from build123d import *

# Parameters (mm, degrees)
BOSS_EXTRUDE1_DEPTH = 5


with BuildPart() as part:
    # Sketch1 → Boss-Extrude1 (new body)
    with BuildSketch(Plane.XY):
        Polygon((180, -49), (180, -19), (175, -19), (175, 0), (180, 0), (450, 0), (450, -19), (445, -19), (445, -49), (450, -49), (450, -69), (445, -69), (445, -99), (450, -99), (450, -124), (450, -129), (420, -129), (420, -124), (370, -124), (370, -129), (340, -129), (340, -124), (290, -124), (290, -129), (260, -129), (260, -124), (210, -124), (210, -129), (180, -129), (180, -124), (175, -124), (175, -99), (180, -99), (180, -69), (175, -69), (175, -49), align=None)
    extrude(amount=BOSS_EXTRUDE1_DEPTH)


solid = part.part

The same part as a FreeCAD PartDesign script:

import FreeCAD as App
import Part
import Sketcher
Q = App.Units.Quantity


def add_polygon(sketch, points):
    """Adds a closed chain of lines whose ends are joined by coincident constraints."""
    first, n = sketch.GeometryCount, len(points)
    for a, b in zip(points, points[1:] + points[:1]):
        sketch.addGeometry(Part.LineSegment(App.Vector(*a, 0), App.Vector(*b, 0)), False)
    for i in range(n):
        sketch.addConstraint(Sketcher.Constraint("Coincident", first + i, 2, first + (i + 1) % n, 1))

doc = App.newDocument("Part")
body = doc.addObject("PartDesign::Body", "Body")

# Sketch on XY plane
sketch1 = doc.addObject("Sketcher::SketchObject", "Sketch")
body.addObject(sketch1)
sketch1.AttachmentSupport = (doc.XY_Plane, [""])
sketch1.MapMode = "FlatFace"
add_polygon(sketch1, [(180, -19), (180, -49), (175, -49), (175, -69), (180, -69), (180, -99), (175, -99), (175, -124), (180, -124), (180, -129), (210, -129), (210, -124), (260, -124), (260, -129), (290, -129), (290, -124), (340, -124), (340, -129), (370, -129), (370, -124), (420, -124), (420, -129), (450, -129), (450, -99), (445, -99), (445, -69), (450, -69), (450, -49), (445, -49), (445, -19), (450, -19), (450, 0), (175, 0), (175, -19)])  # lines 0-33
sketch1.addConstraint([
    Sketcher.Constraint("Vertical", 0),
    Sketcher.Constraint("Horizontal", 1),
    Sketcher.Constraint("Vertical", 2),
    Sketcher.Constraint("Horizontal", 3),
    Sketcher.Constraint("Vertical", 4),
    Sketcher.Constraint("Horizontal", 5),
    Sketcher.Constraint("Vertical", 6),
    Sketcher.Constraint("Horizontal", 7),
    Sketcher.Constraint("Vertical", 8),
    Sketcher.Constraint("Horizontal", 9),
    Sketcher.Constraint("Vertical", 10),
    Sketcher.Constraint("Horizontal", 11),
    Sketcher.Constraint("Vertical", 12),
    Sketcher.Constraint("Horizontal", 13),
    Sketcher.Constraint("Vertical", 14),
    Sketcher.Constraint("Horizontal", 15),
    Sketcher.Constraint("Vertical", 16),
    Sketcher.Constraint("Horizontal", 17),
    Sketcher.Constraint("Vertical", 18),
    Sketcher.Constraint("Horizontal", 19),
    Sketcher.Constraint("Vertical", 20),
    Sketcher.Constraint("Horizontal", 21),
    Sketcher.Constraint("Vertical", 22),
    Sketcher.Constraint("Horizontal", 23),
    Sketcher.Constraint("Vertical", 24),
    Sketcher.Constraint("Horizontal", 25),
    Sketcher.Constraint("Vertical", 26),
    Sketcher.Constraint("Horizontal", 27),
    Sketcher.Constraint("Vertical", 28),
    Sketcher.Constraint("Horizontal", 29),
    Sketcher.Constraint("Vertical", 30),
    Sketcher.Constraint("Horizontal", 31),
    Sketcher.Constraint("Vertical", 32),
    Sketcher.Constraint("Horizontal", 33),
    Sketcher.Constraint("PointOnObject", 30, 2, -1),
    Sketcher.Constraint("Horizontal", 7, 2, 10, 2),
    Sketcher.Constraint("Horizontal", 9, 2, 12, 2),
    Sketcher.Constraint("Horizontal", 11, 2, 14, 2),
    Sketcher.Constraint("Horizontal", 13, 2, 16, 2),
    Sketcher.Constraint("Horizontal", 15, 2, 18, 2),
    Sketcher.Constraint("Horizontal", 17, 2, 20, 2),
    Sketcher.Constraint("Horizontal", 5, 2, 22, 2),
    Sketcher.Constraint("Horizontal", 3, 2, 24, 2),
    Sketcher.Constraint("Horizontal", 1, 2, 26, 2),
    Sketcher.Constraint("Horizontal", 29, 2, 32, 2),
    Sketcher.Constraint("Vertical", 0, 2, 3, 2),
    Sketcher.Constraint("Vertical", 2, 2, 5, 2),
    Sketcher.Constraint("Vertical", 4, 2, 7, 2),
    Sketcher.Constraint("Vertical", 22, 2, 25, 2),
    Sketcher.Constraint("Vertical", 24, 2, 27, 2),
    Sketcher.Constraint("Vertical", 26, 2, 29, 2),
    Sketcher.Constraint("Vertical", 6, 2, 31, 2),
    Sketcher.Constraint("Equal", 9, 13),
    Sketcher.Constraint("Equal", 11, 15),
    Sketcher.Constraint("Equal", 13, 17),
    Sketcher.Constraint("Equal", 15, 19),
    Sketcher.Constraint("Equal", 17, 21),
    Sketcher.Constraint("Equal", 7, 23),
    Sketcher.Constraint("Equal", 21, 0),
    Sketcher.Constraint("Equal", 0, 4),
    Sketcher.Constraint("Equal", 33, 8),
    Sketcher.Constraint("Equal", 4, 22),
    Sketcher.Constraint("DistanceX", 1, 2, 1, 1, Q("5 mm")),
    Sketcher.Constraint("DistanceX", 9, 1, 9, 2, Q("30 mm")),
    Sketcher.Constraint("DistanceX", 11, 1, 11, 2, Q("50 mm")),
    Sketcher.Constraint("DistanceY", 2, 2, 2, 1, Q("20 mm")),
    Sketcher.Constraint("DistanceY", 30, 1, 30, 2, Q("19 mm")),
    Sketcher.Constraint("DistanceX", -1, 1, 0, 2, Q("180 mm")),
])
pad1 = doc.addObject("PartDesign::Pad", "Pad")
body.addObject(pad1)
pad1.Profile = sketch1
pad1.Length = 5

doc.recompute()
